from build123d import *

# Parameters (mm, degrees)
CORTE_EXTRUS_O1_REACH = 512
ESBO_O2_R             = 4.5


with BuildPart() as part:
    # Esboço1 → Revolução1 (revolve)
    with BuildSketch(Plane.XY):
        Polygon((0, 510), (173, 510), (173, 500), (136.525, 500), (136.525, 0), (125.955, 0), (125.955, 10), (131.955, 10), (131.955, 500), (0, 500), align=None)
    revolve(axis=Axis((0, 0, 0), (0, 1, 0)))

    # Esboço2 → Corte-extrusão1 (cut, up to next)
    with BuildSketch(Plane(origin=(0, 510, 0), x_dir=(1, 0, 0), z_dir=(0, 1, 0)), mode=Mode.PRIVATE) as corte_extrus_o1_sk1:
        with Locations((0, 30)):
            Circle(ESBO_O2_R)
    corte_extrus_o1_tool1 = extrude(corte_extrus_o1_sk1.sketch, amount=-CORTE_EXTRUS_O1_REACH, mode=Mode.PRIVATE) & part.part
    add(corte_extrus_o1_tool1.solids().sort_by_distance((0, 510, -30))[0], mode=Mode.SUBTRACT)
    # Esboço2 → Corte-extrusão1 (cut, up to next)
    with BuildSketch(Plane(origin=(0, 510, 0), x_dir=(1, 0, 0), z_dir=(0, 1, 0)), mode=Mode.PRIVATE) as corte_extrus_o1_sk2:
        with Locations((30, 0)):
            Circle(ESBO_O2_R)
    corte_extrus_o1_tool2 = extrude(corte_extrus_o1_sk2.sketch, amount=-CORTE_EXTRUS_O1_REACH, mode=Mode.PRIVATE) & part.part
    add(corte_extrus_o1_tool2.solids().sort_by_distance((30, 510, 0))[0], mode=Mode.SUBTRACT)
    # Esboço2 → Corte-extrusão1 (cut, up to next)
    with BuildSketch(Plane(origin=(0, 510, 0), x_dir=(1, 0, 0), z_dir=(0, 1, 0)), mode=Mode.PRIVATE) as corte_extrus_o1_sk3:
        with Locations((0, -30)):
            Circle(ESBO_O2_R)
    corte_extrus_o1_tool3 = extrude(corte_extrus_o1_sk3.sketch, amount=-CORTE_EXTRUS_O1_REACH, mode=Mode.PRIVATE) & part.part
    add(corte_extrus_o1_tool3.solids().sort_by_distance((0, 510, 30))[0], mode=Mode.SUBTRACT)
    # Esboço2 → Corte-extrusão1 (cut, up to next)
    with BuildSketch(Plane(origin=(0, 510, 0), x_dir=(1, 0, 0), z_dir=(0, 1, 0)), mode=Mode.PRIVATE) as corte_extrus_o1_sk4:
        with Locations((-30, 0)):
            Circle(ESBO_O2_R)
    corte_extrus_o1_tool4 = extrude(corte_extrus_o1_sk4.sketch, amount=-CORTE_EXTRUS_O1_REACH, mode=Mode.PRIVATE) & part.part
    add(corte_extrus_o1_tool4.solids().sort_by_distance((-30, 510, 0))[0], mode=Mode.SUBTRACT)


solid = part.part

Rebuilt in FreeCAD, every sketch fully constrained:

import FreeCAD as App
import Part
import Sketcher
from FreeCAD import Vector
Q = App.Units.Quantity


def add_polygon(sketch, points):
    """Adds a closed chain of lines whose ends are joined by coincident constraints."""
    first, n = sketch.GeometryCount, len(points)
    for a, b in zip(points, points[1:] + points[:1]):
        sketch.addGeometry(Part.LineSegment(App.Vector(*a, 0), App.Vector(*b, 0)), False)
    for i in range(n):
        sketch.addConstraint(Sketcher.Constraint("Coincident", first + i, 2, first + (i + 1) % n, 1))

doc = App.newDocument("Part")
body = doc.addObject("PartDesign::Body", "Body")

# Sketch on XY plane
sketch1 = body.newObject("Sketcher::SketchObject", "Sketch")
sketch1.AttachmentSupport = (doc.getObject("XY_Plane"), [""])
sketch1.MapMode = "FlatFace"
add_polygon(sketch1, [(173, 510), (0, 510), (0, 500), (132, 500), (132, 10), (126, 10), (126, 0), (137, 0), (137, 500), (173, 500)])  # lines 0-9
sketch1.addConstraint(Sketcher.Constraint("Horizontal", 0))
sketch1.addConstraint(Sketcher.Constraint("Vertical", 1))
sketch1.addConstraint(Sketcher.Constraint("Horizontal", 2))
sketch1.addConstraint(Sketcher.Constraint("Vertical", 3))
sketch1.addConstraint(Sketcher.Constraint("Horizontal", 4))
sketch1.addConstraint(Sketcher.Constraint("Vertical", 5))
sketch1.addConstraint(Sketcher.Constraint("Horizontal", 6))
sketch1.addConstraint(Sketcher.Constraint("Vertical", 7))
sketch1.addConstraint(Sketcher.Constraint("Horizontal", 8))
sketch1.addConstraint(Sketcher.Constraint("Vertical", 9))
sketch1.addConstraint(Sketcher.Constraint("PointOnObject", 0, 2, -2))
sketch1.addConstraint(Sketcher.Constraint("PointOnObject", 5, 2, -1))
sketch1.addConstraint(Sketcher.Constraint("Horizontal", 2, 2, 7, 2))
sketch1.addConstraint(Sketcher.Constraint("Equal", 1, 5))
sketch1.addConstraint(Sketcher.Constraint("DistanceX", 0, 2, 0, 1, Q("173 mm")))
sketch1.addConstraint(Sketcher.Constraint("DistanceX", 4, 2, 4, 1, Q("6 mm")))
sketch1.addConstraint(Sketcher.Constraint("DistanceY", 1, 2, 1, 1, Q("10 mm")))
sketch1.addConstraint(Sketcher.Constraint("DistanceY", 3, 2, 3, 1, Q("490 mm")))
sketch1.addConstraint(Sketcher.Constraint("DistanceX", 6, 1, 6, 2, Q("10.57 mm")))
sketch1.addConstraint(Sketcher.Constraint("DistanceX", 2, 1, 2, 2, Q("131.955 mm")))
revolution = body.newObject("PartDesign::Revolution", "Revolution")
revolution.Profile = sketch1
revolution.ReferenceAxis = (sketch1, ["V_Axis"])
revolution.Angle = 360

# Sketch on XZ plane
sketch2 = body.newObject("Sketcher::SketchObject", "Sketch001")
sketch2.AttachmentSupport = (doc.getObject("XZ_Plane"), [""])
sketch2.MapMode = "FlatFace"
sketch2.AttachmentOffset = App.Placement(Vector(0, 0, -510), App.Rotation())
sketch2.addGeometry(Part.Circle(Vector(0, -30, 0), Vector(0, 0, 1), 4.5), False)
sketch2.addConstraint(Sketcher.Constraint("PointOnObject", 0, 3, -2))
sketch2.addConstraint(Sketcher.Constraint("Diameter", 0, Q("9 mm")))
sketch2.addConstraint(Sketcher.Constraint("DistanceY", 0, 3, -1, 1, Q("30 mm")))
pocket1 = body.newObject("PartDesign::Pocket", "Pocket")
pocket1.Profile = sketch2
pocket1.Type = "UpToFirst"
pocket1.Reversed = True

# Sketch on XZ plane
sketch3 = body.newObject("Sketcher::SketchObject", "Sketch002")
sketch3.AttachmentSupport = (doc.getObject("XZ_Plane"), [""])
sketch3.MapMode = "FlatFace"
sketch3.AttachmentOffset = App.Placement(Vector(0, 0, -510), App.Rotation())
sketch3.addGeometry(Part.Circle(Vector(30, 0, 0), Vector(0, 0, 1), 4.5), False)
sketch3.addConstraint(Sketcher.Constraint("PointOnObject", 0, 3, -1))
sketch3.addConstraint(Sketcher.Constraint("Diameter", 0, Q("9 mm")))
sketch3.addConstraint(Sketcher.Constraint("DistanceX", -1, 1, 0, 3, Q("30 mm")))
pocket2 = body.newObject("PartDesign::Pocket", "Pocket001")
pocket2.Profile = sketch3
pocket2.Type = "UpToFirst"
pocket2.Reversed = True

# Sketch on XZ plane
sketch4 = body.newObject("Sketcher::SketchObject", "Sketch003")
sketch4.AttachmentSupport = (doc.getObject("XZ_Plane"), [""])
sketch4.MapMode = "FlatFace"
sketch4.AttachmentOffset = App.Placement(Vector(0, 0, -510), App.Rotation())
sketch4.addGeometry(Part.Circle(Vector(0, 30, 0), Vector(0, 0, 1), 4.5), False)
sketch4.addConstraint(Sketcher.Constraint("PointOnObject", 0, 3, -2))
sketch4.addConstraint(Sketcher.Constraint("Diameter", 0, Q("9 mm")))
sketch4.addConstraint(Sketcher.Constraint("DistanceY", -1, 1, 0, 3, Q("30 mm")))
pocket3 = body.newObject("PartDesign::Pocket", "Pocket002")
pocket3.Profile = sketch4
pocket3.Type = "UpToFirst"
pocket3.Reversed = True

# Sketch on XZ plane
sketch5 = body.newObject("Sketcher::SketchObject", "Sketch004")
sketch5.AttachmentSupport = (doc.getObject("XZ_Plane"), [""])
sketch5.MapMode = "FlatFace"
sketch5.AttachmentOffset = App.Placement(Vector(0, 0, -510), App.Rotation())
sketch5.addGeometry(Part.Circle(Vector(-30, 0, 0), Vector(0, 0, 1), 4.5), False)
sketch5.addConstraint(Sketcher.Constraint("PointOnObject", 0, 3, -1))
sketch5.addConstraint(Sketcher.Constraint("Diameter", 0, Q("9 mm")))
sketch5.addConstraint(Sketcher.Constraint("DistanceX", 0, 3, -1, 1, Q("30 mm")))
pocket4 = body.newObject("PartDesign::Pocket", "Pocket003")
pocket4.Profile = sketch5
pocket4.Type = "UpToFirst"
pocket4.Reversed = True

doc.recompute()
